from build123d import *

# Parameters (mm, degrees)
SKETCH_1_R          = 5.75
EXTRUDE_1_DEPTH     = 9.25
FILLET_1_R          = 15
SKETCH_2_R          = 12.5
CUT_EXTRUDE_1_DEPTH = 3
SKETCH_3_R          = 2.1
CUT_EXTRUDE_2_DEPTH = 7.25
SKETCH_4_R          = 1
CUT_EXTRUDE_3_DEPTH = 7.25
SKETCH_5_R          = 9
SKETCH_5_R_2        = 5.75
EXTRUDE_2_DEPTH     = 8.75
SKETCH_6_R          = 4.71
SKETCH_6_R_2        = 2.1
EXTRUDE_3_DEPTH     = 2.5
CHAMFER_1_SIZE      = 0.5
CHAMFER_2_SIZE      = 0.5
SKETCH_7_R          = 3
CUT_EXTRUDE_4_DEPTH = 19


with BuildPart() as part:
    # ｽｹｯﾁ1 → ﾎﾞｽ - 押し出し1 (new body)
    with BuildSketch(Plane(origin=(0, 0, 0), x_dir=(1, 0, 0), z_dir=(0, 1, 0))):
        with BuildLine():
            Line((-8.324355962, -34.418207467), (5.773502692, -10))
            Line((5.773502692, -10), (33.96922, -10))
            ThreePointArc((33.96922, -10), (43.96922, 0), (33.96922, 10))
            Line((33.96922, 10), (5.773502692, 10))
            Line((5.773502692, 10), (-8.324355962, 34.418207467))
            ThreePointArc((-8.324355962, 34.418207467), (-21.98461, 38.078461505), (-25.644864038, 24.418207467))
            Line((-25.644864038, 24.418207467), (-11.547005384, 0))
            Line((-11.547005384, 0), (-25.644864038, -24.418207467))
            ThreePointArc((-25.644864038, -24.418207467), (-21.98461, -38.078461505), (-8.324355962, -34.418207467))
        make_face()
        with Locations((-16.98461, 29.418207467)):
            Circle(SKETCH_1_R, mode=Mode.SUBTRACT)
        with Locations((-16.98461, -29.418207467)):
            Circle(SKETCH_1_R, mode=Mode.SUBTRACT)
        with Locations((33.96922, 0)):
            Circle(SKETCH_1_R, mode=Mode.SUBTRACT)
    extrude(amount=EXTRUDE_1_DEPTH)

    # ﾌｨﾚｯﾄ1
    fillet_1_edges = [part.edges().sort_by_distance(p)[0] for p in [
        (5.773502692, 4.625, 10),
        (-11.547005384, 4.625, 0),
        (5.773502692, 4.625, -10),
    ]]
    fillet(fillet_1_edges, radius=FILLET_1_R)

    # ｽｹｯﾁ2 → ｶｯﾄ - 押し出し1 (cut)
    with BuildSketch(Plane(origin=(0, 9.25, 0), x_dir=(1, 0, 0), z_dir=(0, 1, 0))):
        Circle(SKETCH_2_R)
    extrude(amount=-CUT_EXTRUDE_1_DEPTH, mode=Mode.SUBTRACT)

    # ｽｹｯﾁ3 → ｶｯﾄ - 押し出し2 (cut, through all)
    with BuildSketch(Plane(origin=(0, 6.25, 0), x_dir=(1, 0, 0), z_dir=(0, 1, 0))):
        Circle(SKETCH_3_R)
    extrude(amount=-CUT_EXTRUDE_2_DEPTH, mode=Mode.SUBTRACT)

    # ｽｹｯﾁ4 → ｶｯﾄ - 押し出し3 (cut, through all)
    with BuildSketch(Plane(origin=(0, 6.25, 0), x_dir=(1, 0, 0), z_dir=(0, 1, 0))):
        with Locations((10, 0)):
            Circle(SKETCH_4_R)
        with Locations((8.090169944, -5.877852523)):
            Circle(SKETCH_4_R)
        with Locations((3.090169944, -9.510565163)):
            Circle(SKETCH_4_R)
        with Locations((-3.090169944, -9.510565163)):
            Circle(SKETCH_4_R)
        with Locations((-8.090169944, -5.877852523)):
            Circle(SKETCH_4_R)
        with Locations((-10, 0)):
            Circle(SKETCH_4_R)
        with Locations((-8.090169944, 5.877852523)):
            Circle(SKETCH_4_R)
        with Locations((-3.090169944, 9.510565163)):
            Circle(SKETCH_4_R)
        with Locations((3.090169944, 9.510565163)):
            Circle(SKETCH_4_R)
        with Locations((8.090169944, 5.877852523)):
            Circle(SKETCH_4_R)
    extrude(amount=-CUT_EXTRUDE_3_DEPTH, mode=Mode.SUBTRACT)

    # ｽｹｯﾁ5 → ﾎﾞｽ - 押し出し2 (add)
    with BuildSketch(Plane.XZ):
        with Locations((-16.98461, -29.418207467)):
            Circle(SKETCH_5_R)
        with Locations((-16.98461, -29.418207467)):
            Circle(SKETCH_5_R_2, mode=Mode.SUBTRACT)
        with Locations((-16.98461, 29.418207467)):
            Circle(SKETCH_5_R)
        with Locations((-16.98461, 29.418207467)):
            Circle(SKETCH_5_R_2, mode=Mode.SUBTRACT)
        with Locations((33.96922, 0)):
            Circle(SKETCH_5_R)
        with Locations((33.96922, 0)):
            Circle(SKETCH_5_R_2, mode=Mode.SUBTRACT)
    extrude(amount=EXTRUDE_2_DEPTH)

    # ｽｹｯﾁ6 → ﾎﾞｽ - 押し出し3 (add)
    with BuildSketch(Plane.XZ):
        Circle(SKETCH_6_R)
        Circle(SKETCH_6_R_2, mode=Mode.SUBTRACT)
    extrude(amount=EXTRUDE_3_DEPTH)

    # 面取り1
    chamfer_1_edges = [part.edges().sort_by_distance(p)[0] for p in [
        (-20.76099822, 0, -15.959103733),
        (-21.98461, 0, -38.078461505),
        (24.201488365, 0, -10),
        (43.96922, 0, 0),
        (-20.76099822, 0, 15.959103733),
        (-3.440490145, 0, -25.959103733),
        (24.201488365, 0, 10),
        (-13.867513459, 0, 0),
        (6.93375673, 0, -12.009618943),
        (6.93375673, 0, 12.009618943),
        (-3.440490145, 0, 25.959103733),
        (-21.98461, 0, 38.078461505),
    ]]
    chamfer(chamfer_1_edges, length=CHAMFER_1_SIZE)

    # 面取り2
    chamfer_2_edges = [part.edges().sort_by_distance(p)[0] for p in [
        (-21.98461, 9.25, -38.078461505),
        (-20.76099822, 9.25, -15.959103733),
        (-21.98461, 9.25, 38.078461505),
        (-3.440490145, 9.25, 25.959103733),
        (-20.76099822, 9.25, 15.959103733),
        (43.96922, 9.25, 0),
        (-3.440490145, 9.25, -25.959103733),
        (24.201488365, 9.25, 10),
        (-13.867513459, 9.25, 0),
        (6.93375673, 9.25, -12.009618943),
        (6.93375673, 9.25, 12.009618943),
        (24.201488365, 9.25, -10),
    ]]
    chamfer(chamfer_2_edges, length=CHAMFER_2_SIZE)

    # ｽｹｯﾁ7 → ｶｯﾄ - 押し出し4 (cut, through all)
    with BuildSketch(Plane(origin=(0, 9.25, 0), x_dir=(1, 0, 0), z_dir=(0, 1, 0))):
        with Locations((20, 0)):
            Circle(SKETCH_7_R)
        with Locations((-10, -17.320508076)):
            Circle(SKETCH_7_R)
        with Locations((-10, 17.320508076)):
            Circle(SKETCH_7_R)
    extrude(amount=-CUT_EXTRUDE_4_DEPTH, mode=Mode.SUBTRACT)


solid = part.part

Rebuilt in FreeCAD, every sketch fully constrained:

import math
import FreeCAD as App
import Part
import Sketcher
from FreeCAD import Vector


def edges_at(feature, points):
    """Names of the edges that pass closest to the given points."""
    edges = feature.Shape.Edges
    near = lambda p: min(range(len(edges)), key=lambda i: edges[i].distToShape(Part.Vertex(*p))[0])
    return sorted({f"Edge{near(p) + 1}" for p in points})

doc = App.newDocument("Part")
body = doc.addObject("PartDesign::Body", "Body")

# Sketch on XZ plane
sketch1 = body.newObject("Sketcher::SketchObject", "Sketch")
sketch1.AttachmentSupport = (doc.getObject("XZ_Plane"), [""])
sketch1.MapMode = "FlatFace"
sketch1.addGeometry([
    Part.LineSegment(Vector(-8, 34, 0), Vector(6, 10, 0)),  # 0
    Part.LineSegment(Vector(6, 10, 0), Vector(34, 10, 0)),  # 1
    Part.ArcOfCircle(Part.Circle(Vector(34, 0, 0), Vector(0, 0, 1), 10), math.radians(-90), math.radians(90)),  # 2
    Part.LineSegment(Vector(34, -10, 0), Vector(6, -10, 0)),  # 3
    Part.LineSegment(Vector(6, -10, 0), Vector(-8, -34, 0)),  # 4
    Part.ArcOfCircle(Part.Circle(Vector(-17, -29, 0), Vector(0, 0, 1), 10), math.radians(150), math.radians(330)),  # 5
    Part.LineSegment(Vector(-26, -24, 0), Vector(-12, 0, 0)),  # 6
    Part.LineSegment(Vector(-12, 0, 0), Vector(-26, 24, 0)),  # 7
    Part.ArcOfCircle(Part.Circle(Vector(-17, 29, 0), Vector(0, 0, 1), 10), math.radians(30), math.radians(210)),  # 8
    Part.Circle(Vector(-17, 29, 0), Vector(0, 0, 1), 6),  # 9
    Part.Circle(Vector(-17, -29, 0), Vector(0, 0, 1), 6),  # 10
    Part.Circle(Vector(34, 0, 0), Vector(0, 0, 1), 6),  # 11
], False)
sketch1.addConstraint([
    Sketcher.Constraint("Coincident", 0, 2, 1, 1),
    Sketcher.Constraint("Tangent", 1, 2, 2, 2),
    Sketcher.Constraint("Tangent", 2, 1, 3, 1),
    Sketcher.Constraint("Coincident", 3, 2, 4, 1),
    Sketcher.Constraint("Tangent", 4, 2, 5, 2),
    Sketcher.Constraint("Tangent", 5, 1, 6, 1),
    Sketcher.Constraint("Coincident", 6, 2, 7, 1),
    Sketcher.Constraint("Tangent", 7, 2, 8, 2),
    Sketcher.Constraint("Tangent", 8, 1, 0, 1),
    Sketcher.Constraint("Horizontal", 1),
    Sketcher.Constraint("Horizontal", 3),
    Sketcher.Constraint("Coincident", 9, 3, 8, 3),
    Sketcher.Constraint("Coincident", 10, 3, 5, 3),
    Sketcher.Constraint("Coincident", 11, 3, 2, 3),
    Sketcher.Constraint("Equal", 2, 5),
    Sketcher.Constraint("Equal", 5, 8),
    Sketcher.Constraint("Equal", 9, 10),
    Sketcher.Constraint("Equal", 10, 11),
    Sketcher.Constraint("Symmetric", 5, 3, 8, 3, -1),
    Sketcher.Constraint("Symmetric", 0, 2, 3, 2, -1),
    Sketcher.Constraint("PointOnObject", 6, 2, -1),
    Sketcher.Constraint("Parallel", 4, 6),
    Sketcher.Constraint("Equal", 4, 6),
    Sketcher.Constraint("Radius", 2, 10.0),
    Sketcher.Constraint("Diameter", 9, 11.5),
    Sketcher.Constraint("DistanceX", 1, 1, 1, 2, 28.195717),
    Sketcher.Constraint("DistanceX", -1, 1, 2, 3, 33.96922),
    Sketcher.Constraint("DistanceX", 5, 3, -1, 1, 16.98461),
])
pad1 = body.newObject("PartDesign::Pad", "Pad")
pad1.Profile = sketch1
pad1.Length = 9.25
pad1.Reversed = True
doc.recompute()

fillet = body.newObject("PartDesign::Fillet", "Fillet")
fillet.Base = (pad1, edges_at(pad1, [(5.774, 4.625, 10), (-11.547, 4.625, 0), (5.774, 4.625, -10)]))
fillet.Radius = 15

# Sketch on XZ plane
sketch2 = body.newObject("Sketcher::SketchObject", "Sketch001")
sketch2.AttachmentSupport = (doc.getObject("XZ_Plane"), [""])
sketch2.MapMode = "FlatFace"
sketch2.AttachmentOffset = App.Placement(Vector(0, 0, -9.25), App.Rotation())
sketch2.addGeometry(Part.Circle(Vector(0, 0, 0), Vector(0, 0, 1), 12), False)
sketch2.addConstraint([
    Sketcher.Constraint("Coincident", 0, 3, -1, 1),
    Sketcher.Constraint("Diameter", 0, 25.0),
])
pocket1 = body.newObject("PartDesign::Pocket", "Pocket")
pocket1.Profile = sketch2
pocket1.Length = 3
pocket1.Reversed = True

# Sketch on XZ plane
sketch3 = body.newObject("Sketcher::SketchObject", "Sketch002")
sketch3.AttachmentSupport = (doc.getObject("XZ_Plane"), [""])
sketch3.MapMode = "FlatFace"
sketch3.AttachmentOffset = App.Placement(Vector(0, 0, -6.25), App.Rotation())
sketch3.addGeometry(Part.Circle(Vector(0, 0, 0), Vector(0, 0, 1), 2.1), False)
sketch3.addConstraint([
    Sketcher.Constraint("Coincident", 0, 3, -1, 1),
    Sketcher.Constraint("Diameter", 0, 4.2),
])
pocket2 = body.newObject("PartDesign::Pocket", "Pocket001")
pocket2.Profile = sketch3
pocket2.Type = "ThroughAll"
pocket2.Reversed = True

# Sketch on XZ plane
sketch4 = body.newObject("Sketcher::SketchObject", "Sketch003")
sketch4.AttachmentSupport = (doc.getObject("XZ_Plane"), [""])
sketch4.MapMode = "FlatFace"
sketch4.AttachmentOffset = App.Placement(Vector(0, 0, -6.25), App.Rotation())
sketch4.addGeometry([
    Part.Circle(Vector(10, 0, 0), Vector(0, 0, 1), 1),  # 0
    Part.Circle(Vector(8.1, 5.9, 0), Vector(0, 0, 1), 1),  # 1
    Part.Circle(Vector(3.1, 9.5, 0), Vector(0, 0, 1), 1),  # 2
    Part.Circle(Vector(-3.1, 9.5, 0), Vector(0, 0, 1), 1),  # 3
    Part.Circle(Vector(-8.1, 5.9, 0), Vector(0, 0, 1), 1),  # 4
    Part.Circle(Vector(-10, 0, 0), Vector(0, 0, 1), 1),  # 5
    Part.Circle(Vector(-8.1, -5.9, 0), Vector(0, 0, 1), 1),  # 6
    Part.Circle(Vector(-3.1, -9.5, 0), Vector(0, 0, 1), 1),  # 7
    Part.Circle(Vector(3.1, -9.5, 0), Vector(0, 0, 1), 1),  # 8
    Part.Circle(Vector(8.1, -5.9, 0), Vector(0, 0, 1), 1),  # 9
], False)
sketch4.addConstraint([
    Sketcher.Constraint("Equal", 0, 1),
    Sketcher.Constraint("Equal", 1, 2),
    Sketcher.Constraint("Equal", 2, 3),
    Sketcher.Constraint("Equal", 3, 4),
    Sketcher.Constraint("Equal", 4, 5),
    Sketcher.Constraint("Equal", 5, 6),
    Sketcher.Constraint("Equal", 6, 7),
    Sketcher.Constraint("Equal", 7, 8),
    Sketcher.Constraint("Equal", 8, 9),
    Sketcher.Constraint("Symmetric", 0, 3, 5, 3, -1, 1),
    Sketcher.Constraint("Symmetric", 1, 3, 6, 3, -1, 1),
    Sketcher.Constraint("Symmetric", 2, 3, 7, 3, -1, 1),
    Sketcher.Constraint("Symmetric", 3, 3, 8, 3, -1, 1),
    Sketcher.Constraint("Symmetric", 4, 3, 9, 3, -1, 1),
    Sketcher.Constraint("Symmetric", 2, 3, 3, 3, -2),
    Sketcher.Constraint("Symmetric", 1, 3, 4, 3, -2),
    Sketcher.Constraint("PointOnObject", 0, 3, -1),
    Sketcher.Constraint("Diameter", 0, 2.0),
    Sketcher.Constraint("DistanceX", -1, 1, 0, 3, 10.0),
    Sketcher.Constraint("DistanceX", 2, 3, 1, 3, 5.0),
    Sketcher.Constraint("DistanceX", -1, 1, 1, 3, 8.09017),
    Sketcher.Constraint("DistanceY", 7, 3, 3, 3, 19.02113),
    Sketcher.Constraint("DistanceY", -1, 1, 1, 3, 5.877853),
])
pocket3 = body.newObject("PartDesign::Pocket", "Pocket002")
pocket3.Profile = sketch4
pocket3.Type = "ThroughAll"
pocket3.Reversed = True

# Sketch on XZ plane
sketch5 = body.newObject("Sketcher::SketchObject", "Sketch004")
sketch5.AttachmentSupport = (doc.getObject("XZ_Plane"), [""])
sketch5.MapMode = "FlatFace"
sketch5.addGeometry([
    Part.Circle(Vector(-17, -29, 0), Vector(0, 0, 1), 9),  # 0
    Part.Circle(Vector(-17, -29, 0), Vector(0, 0, 1), 6),  # 1
    Part.Circle(Vector(-17, 29, 0), Vector(0, 0, 1), 9),  # 2
    Part.Circle(Vector(-17, 29, 0), Vector(0, 0, 1), 6),  # 3
    Part.Circle(Vector(34, 0, 0), Vector(0, 0, 1), 9),  # 4
    Part.Circle(Vector(34, 0, 0), Vector(0, 0, 1), 6),  # 5
], False)
sketch5.addConstraint([
    Sketcher.Constraint("Coincident", 1, 3, 0, 3),
    Sketcher.Constraint("Coincident", 3, 3, 2, 3),
    Sketcher.Constraint("Coincident", 5, 3, 4, 3),
    Sketcher.Constraint("Equal", 0, 2),
    Sketcher.Constraint("Equal", 1, 3),
    Sketcher.Constraint("Equal", 2, 4),
    Sketcher.Constraint("Equal", 3, 5),
    Sketcher.Constraint("Symmetric", 0, 3, 2, 3, -1),
    Sketcher.Constraint("PointOnObject", 4, 3, -1),
    Sketcher.Constraint("Diameter", 0, 18.0),
    Sketcher.Constraint("Diameter", 1, 11.5),
    Sketcher.Constraint("DistanceX", 0, 3, -1, 1, 16.98461),
    Sketcher.Constraint("DistanceX", -1, 1, 4, 3, 33.96922),
    Sketcher.Constraint("DistanceY", 0, 3, -1, 1, 29.418207),
])
pad2 = body.newObject("PartDesign::Pad", "Pad001")
pad2.Profile = sketch5
pad2.Length = 8.75

# Sketch on XZ plane
sketch6 = body.newObject("Sketcher::SketchObject", "Sketch005")
sketch6.AttachmentSupport = (doc.getObject("XZ_Plane"), [""])
sketch6.MapMode = "FlatFace"
sketch6.addGeometry([
    Part.Circle(Vector(0, 0, 0), Vector(0, 0, 1), 4.7),
    Part.Circle(Vector(0, 0, 0), Vector(0, 0, 1), 2.1),
], False)
sketch6.addConstraint([
    Sketcher.Constraint("Coincident", 0, 3, -1, 1),
    Sketcher.Constraint("Coincident", 1, 3, -1, 1),
    Sketcher.Constraint("Diameter", 1, 4.2),
    Sketcher.Constraint("Diameter", 0, 9.42),
])
pad3 = body.newObject("PartDesign::Pad", "Pad002")
pad3.Profile = sketch6
pad3.Length = 2.5
doc.recompute()

chamfer = body.newObject("PartDesign::Chamfer", "Chamfer")
chamfer.Base = (pad3, edges_at(pad3, [
    (-20.761, 0, -15.959),
    (-21.985, 0, -38.078),
    (24.201, 0, -10),
    (43.969, 0, 0),
    (-20.761, 0, 15.959),
    (-3.44, 0, -25.959),
    (24.201, 0, 10),
    (-13.868, 0, 0),
    (6.934, 0, -12.01),
    (6.934, 0, 12.01),
    (-3.44, 0, 25.959),
    (-21.985, 0, 38.078),
]))
chamfer.Size = 0.5
doc.recompute()

chamfer2 = body.newObject("PartDesign::Chamfer", "Chamfer001")
chamfer2.Base = (chamfer, edges_at(chamfer, [
    (-21.985, 9.25, -38.078),
    (-20.761, 9.25, -15.959),
    (-21.985, 9.25, 38.078),
    (-3.44, 9.25, 25.959),
    (-20.761, 9.25, 15.959),
    (43.969, 9.25, 0),
    (-3.44, 9.25, -25.959),
    (24.201, 9.25, 10),
    (-13.868, 9.25, 0),
    (6.934, 9.25, -12.01),
    (6.934, 9.25, 12.01),
    (24.201, 9.25, -10),
]))
chamfer2.Size = 0.5

# Sketch on XZ plane
sketch7 = body.newObject("Sketcher::SketchObject", "Sketch006")
sketch7.AttachmentSupport = (doc.getObject("XZ_Plane"), [""])
sketch7.MapMode = "FlatFace"
sketch7.AttachmentOffset = App.Placement(Vector(0, 0, -9.25), App.Rotation())
sketch7.addGeometry([
    Part.Circle(Vector(20, 0, 0), Vector(0, 0, 1), 3),
    Part.Circle(Vector(-10, 17.3, 0), Vector(0, 0, 1), 3),
    Part.Circle(Vector(-10, -17.3, 0), Vector(0, 0, 1), 3),
], False)
sketch7.addConstraint([
    Sketcher.Constraint("Equal", 0, 1),
    Sketcher.Constraint("Equal", 1, 2),
    Sketcher.Constraint("Symmetric", 1, 3, 2, 3, -1),
    Sketcher.Constraint("PointOnObject", 0, 3, -1),
    Sketcher.Constraint("Diameter", 0, 6.0),
    Sketcher.Constraint("DistanceX", -1, 1, 0, 3, 20.0),
    Sketcher.Constraint("DistanceX", 1, 3, -1, 1, 10.0),
    Sketcher.Constraint("DistanceY", -1, 1, 1, 3, 17.320508),
])
pocket4 = body.newObject("PartDesign::Pocket", "Pocket003")
pocket4.Profile = sketch7
pocket4.Type = "ThroughAll"
pocket4.Reversed = True

doc.recompute()
